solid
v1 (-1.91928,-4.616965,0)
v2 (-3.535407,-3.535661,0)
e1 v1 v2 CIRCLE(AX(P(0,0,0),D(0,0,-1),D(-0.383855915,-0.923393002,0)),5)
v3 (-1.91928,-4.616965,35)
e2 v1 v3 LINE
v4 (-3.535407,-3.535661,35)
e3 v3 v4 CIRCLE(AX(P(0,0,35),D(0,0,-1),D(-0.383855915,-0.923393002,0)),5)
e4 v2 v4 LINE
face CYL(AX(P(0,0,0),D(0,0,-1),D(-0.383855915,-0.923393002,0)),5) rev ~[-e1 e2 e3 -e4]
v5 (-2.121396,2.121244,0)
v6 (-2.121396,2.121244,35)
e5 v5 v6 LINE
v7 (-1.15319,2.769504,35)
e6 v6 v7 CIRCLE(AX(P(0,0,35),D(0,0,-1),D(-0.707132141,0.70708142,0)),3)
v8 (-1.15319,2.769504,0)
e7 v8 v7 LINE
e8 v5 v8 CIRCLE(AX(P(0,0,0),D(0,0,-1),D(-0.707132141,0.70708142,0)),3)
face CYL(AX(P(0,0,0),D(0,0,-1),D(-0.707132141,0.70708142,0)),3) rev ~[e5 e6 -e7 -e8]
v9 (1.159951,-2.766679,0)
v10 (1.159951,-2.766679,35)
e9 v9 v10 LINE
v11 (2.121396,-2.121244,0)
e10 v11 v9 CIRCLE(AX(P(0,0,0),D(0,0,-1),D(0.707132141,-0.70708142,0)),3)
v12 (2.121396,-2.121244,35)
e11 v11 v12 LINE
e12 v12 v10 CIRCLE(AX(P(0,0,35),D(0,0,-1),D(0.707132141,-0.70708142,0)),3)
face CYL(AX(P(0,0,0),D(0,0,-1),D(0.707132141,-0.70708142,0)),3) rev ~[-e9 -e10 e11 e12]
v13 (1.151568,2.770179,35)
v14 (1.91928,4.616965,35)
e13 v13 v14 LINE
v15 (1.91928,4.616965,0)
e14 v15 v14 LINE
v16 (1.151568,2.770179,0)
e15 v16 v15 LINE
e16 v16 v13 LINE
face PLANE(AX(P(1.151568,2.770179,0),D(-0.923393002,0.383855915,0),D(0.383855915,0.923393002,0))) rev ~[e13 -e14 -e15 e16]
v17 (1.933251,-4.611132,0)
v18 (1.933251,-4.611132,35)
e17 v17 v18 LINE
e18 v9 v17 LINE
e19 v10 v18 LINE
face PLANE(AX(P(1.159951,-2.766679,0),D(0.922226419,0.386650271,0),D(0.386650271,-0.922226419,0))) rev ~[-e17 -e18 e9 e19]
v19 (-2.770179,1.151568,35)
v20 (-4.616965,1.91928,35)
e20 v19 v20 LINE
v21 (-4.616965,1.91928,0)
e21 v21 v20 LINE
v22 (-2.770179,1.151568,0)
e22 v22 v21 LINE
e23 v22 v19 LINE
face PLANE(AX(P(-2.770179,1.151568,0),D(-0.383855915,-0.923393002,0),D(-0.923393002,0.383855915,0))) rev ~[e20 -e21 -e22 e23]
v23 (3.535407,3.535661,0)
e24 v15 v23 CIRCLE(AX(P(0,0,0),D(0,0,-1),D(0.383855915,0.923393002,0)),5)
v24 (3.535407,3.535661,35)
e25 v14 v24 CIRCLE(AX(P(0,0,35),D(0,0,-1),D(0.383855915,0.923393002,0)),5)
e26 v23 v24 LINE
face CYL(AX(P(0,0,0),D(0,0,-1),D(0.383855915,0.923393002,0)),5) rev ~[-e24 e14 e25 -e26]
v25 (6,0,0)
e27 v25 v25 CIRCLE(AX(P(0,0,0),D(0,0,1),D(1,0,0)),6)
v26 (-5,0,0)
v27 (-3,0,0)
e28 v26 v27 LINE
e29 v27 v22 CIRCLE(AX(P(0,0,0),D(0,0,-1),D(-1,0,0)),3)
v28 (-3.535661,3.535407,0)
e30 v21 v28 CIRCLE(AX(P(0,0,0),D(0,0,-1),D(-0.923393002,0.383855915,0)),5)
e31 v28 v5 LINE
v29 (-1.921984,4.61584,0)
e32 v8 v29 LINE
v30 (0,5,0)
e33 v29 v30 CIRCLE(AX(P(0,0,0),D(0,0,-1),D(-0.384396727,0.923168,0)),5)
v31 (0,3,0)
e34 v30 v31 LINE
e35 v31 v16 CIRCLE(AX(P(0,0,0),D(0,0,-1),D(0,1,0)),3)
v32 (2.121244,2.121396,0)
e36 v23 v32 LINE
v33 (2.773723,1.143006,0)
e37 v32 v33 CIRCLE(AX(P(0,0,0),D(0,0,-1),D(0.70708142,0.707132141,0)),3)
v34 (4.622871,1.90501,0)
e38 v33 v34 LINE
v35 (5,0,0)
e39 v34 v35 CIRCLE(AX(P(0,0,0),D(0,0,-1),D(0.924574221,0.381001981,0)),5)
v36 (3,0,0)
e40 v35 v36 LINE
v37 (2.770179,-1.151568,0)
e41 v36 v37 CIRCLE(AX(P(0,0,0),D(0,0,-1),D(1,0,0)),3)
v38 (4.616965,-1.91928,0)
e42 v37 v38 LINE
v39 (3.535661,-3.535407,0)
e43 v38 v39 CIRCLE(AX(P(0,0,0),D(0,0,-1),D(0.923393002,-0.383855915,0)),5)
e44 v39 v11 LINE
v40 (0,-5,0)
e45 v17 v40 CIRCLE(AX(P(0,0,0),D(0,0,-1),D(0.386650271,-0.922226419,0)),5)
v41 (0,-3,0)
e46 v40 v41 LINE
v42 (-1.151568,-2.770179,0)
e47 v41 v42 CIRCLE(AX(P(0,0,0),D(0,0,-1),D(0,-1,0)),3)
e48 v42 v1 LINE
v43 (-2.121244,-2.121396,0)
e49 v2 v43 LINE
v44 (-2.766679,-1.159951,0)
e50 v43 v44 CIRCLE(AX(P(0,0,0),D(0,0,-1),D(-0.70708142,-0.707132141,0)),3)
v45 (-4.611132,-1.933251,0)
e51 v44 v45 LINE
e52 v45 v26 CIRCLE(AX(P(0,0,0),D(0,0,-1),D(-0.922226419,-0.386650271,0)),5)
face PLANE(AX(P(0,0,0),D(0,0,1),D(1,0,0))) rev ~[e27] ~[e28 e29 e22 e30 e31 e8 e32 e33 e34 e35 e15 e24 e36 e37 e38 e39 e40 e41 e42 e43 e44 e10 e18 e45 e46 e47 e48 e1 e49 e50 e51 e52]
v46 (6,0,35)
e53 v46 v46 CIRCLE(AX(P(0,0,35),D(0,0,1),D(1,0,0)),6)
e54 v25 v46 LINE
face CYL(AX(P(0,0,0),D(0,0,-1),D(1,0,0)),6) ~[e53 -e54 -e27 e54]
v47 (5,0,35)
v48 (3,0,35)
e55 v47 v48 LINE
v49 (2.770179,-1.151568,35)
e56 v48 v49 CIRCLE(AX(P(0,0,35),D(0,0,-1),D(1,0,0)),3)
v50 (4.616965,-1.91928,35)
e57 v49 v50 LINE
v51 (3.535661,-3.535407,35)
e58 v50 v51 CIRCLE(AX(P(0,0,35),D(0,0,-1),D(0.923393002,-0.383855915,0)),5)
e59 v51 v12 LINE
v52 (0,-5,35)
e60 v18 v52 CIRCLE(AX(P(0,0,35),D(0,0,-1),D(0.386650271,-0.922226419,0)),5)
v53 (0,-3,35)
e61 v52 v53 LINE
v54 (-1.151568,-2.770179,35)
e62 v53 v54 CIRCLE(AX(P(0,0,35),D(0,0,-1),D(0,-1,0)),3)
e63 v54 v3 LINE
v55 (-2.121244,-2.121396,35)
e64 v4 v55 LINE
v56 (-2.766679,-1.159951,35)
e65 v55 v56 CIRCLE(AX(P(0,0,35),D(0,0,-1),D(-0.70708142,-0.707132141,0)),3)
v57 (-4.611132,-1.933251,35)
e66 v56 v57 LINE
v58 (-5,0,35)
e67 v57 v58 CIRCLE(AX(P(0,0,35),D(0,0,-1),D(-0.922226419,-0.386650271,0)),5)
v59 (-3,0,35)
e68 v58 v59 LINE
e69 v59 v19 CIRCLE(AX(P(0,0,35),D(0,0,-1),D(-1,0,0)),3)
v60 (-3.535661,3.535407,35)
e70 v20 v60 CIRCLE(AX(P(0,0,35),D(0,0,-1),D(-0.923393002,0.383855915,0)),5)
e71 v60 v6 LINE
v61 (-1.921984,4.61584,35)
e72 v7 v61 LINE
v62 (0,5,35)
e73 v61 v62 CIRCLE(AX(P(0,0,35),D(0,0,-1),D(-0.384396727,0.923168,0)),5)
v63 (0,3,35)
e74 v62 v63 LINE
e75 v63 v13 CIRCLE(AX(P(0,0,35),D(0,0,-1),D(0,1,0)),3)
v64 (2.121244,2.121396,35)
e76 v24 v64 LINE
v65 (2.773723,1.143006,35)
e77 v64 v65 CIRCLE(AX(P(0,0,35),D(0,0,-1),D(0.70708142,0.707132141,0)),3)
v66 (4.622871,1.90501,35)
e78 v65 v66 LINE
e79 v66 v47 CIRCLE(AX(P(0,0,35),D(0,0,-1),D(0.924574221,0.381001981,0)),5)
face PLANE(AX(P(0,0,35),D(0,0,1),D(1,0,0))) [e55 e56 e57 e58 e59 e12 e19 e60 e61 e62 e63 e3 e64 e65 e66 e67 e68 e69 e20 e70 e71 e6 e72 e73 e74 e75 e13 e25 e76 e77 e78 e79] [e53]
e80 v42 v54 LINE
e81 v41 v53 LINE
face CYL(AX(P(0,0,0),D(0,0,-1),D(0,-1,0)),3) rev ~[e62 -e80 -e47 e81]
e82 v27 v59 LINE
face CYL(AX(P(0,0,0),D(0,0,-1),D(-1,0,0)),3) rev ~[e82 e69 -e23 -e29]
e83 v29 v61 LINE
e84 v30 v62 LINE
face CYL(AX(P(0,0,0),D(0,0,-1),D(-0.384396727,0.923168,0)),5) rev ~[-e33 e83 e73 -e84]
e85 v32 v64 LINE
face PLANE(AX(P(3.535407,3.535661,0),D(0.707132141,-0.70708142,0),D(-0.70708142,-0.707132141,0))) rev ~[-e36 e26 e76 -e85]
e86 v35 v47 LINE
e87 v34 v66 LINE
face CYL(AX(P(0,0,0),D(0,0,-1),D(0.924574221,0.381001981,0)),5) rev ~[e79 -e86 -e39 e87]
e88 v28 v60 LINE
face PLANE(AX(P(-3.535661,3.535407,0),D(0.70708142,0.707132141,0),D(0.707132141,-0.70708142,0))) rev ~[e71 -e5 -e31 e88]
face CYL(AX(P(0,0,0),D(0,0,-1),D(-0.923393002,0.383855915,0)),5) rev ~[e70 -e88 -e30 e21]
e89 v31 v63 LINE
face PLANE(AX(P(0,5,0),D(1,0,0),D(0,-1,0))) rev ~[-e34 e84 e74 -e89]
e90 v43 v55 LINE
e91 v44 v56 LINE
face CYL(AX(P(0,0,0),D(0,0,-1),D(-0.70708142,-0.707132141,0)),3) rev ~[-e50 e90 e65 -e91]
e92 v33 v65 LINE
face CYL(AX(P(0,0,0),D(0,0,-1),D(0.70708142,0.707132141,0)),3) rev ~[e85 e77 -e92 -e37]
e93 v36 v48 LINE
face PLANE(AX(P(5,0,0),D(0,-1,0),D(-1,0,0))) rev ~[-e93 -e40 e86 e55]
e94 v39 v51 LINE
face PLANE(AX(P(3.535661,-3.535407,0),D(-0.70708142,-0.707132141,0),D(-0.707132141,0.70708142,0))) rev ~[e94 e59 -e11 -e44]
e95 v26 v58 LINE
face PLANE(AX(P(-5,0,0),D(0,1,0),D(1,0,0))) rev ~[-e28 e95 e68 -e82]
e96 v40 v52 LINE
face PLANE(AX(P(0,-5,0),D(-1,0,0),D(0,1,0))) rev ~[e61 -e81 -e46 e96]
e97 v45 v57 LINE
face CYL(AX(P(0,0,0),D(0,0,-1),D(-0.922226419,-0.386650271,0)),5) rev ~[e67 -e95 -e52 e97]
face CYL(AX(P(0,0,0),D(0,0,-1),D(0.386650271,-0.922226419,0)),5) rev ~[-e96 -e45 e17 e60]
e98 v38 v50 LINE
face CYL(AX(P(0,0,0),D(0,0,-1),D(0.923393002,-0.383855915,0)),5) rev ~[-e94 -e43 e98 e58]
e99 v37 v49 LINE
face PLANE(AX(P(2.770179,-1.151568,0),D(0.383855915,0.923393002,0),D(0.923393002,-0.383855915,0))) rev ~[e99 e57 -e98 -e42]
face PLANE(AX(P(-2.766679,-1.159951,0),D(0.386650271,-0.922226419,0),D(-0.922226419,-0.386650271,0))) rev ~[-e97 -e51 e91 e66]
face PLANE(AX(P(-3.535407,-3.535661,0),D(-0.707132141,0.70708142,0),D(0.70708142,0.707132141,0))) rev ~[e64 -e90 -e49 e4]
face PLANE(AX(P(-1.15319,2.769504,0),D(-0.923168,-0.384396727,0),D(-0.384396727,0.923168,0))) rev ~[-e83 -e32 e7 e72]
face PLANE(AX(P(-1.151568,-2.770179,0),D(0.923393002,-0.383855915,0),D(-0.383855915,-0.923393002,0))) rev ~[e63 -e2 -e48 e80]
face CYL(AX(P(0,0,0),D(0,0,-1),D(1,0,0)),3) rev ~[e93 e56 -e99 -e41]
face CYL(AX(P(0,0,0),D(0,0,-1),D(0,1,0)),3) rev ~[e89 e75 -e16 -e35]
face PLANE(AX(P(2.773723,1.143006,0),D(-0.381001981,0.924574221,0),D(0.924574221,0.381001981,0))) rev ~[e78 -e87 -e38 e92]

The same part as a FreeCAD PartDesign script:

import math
import FreeCAD as App
import Part
import Sketcher

doc = App.newDocument("Part")
body = doc.addObject("PartDesign::Body", "Body")

sketch1 = body.newObject("Sketcher::SketchObject", "Sketch")
sketch1.AttachmentSupport = (doc.getObject("XY_Plane"), [""])
sketch1.MapMode = "FlatFace"
sketch1.addGeometry(Part.Circle(App.Vector(0, 0, 0), App.Vector(0, 0, 1), 6), False)
sketch1.addGeometry(Part.ArcOfCircle(Part.Circle(App.Vector(0, 0, 0), App.Vector(0, 0, 1), 5), math.radians(0), math.radians(22)), False)
sketch1.addGeometry(Part.LineSegment(App.Vector(5, 0, 0), App.Vector(3, 0, 0)), False)
sketch1.addGeometry(Part.ArcOfCircle(Part.Circle(App.Vector(0, 0, 0), App.Vector(0, 0, 1), 3), math.radians(-23), math.radians(0)), False)
sketch1.addGeometry(Part.LineSegment(App.Vector(2.8, -1.2, 0), App.Vector(4.6, -1.9, 0)), False)
sketch1.addGeometry(Part.ArcOfCircle(Part.Circle(App.Vector(0, 0, 0), App.Vector(0, 0, 1), 5), math.radians(-45), math.radians(-23)), False)
sketch1.addGeometry(Part.LineSegment(App.Vector(3.5, -3.5, 0), App.Vector(2.1, -2.1, 0)), False)
sketch1.addGeometry(Part.ArcOfCircle(Part.Circle(App.Vector(0, 0, 0), App.Vector(0, 0, 1), 3), math.radians(-67), math.radians(-45)), False)
sketch1.addGeometry(Part.LineSegment(App.Vector(1.2, -2.8, 0), App.Vector(1.9, -4.6, 0)), False)
sketch1.addGeometry(Part.ArcOfCircle(Part.Circle(App.Vector(0, 0, 0), App.Vector(0, 0, 1), 5), math.radians(-90), math.radians(-67)), False)
sketch1.addGeometry(Part.LineSegment(App.Vector(0, -5, 0), App.Vector(0, -3, 0)), False)
sketch1.addGeometry(Part.ArcOfCircle(Part.Circle(App.Vector(0, 0, 0), App.Vector(0, 0, 1), 3), math.radians(-113), math.radians(-90)), False)
sketch1.addGeometry(Part.LineSegment(App.Vector(-1.2, -2.8, 0), App.Vector(-1.9, -4.6, 0)), False)
sketch1.addGeometry(Part.ArcOfCircle(Part.Circle(App.Vector(0, 0, 0), App.Vector(0, 0, 1), 5), math.radians(-135), math.radians(-113)), False)
sketch1.addGeometry(Part.LineSegment(App.Vector(-3.5, -3.5, 0), App.Vector(-2.1, -2.1, 0)), False)
sketch1.addGeometry(Part.ArcOfCircle(Part.Circle(App.Vector(0, 0, 0), App.Vector(0, 0, 1), 3), math.radians(-157), math.radians(-135)), False)
sketch1.addGeometry(Part.LineSegment(App.Vector(-2.8, -1.2, 0), App.Vector(-4.6, -1.9, 0)), False)
sketch1.addGeometry(Part.ArcOfCircle(Part.Circle(App.Vector(0, 0, 0), App.Vector(0, 0, 1), 5), math.radians(180), math.radians(203)), False)
sketch1.addGeometry(Part.LineSegment(App.Vector(-5, 0, 0), App.Vector(-3, 0, 0)), False)
sketch1.addGeometry(Part.ArcOfCircle(Part.Circle(App.Vector(0, 0, 0), App.Vector(0, 0, 1), 3), math.radians(157), math.radians(180)), False)
sketch1.addGeometry(Part.LineSegment(App.Vector(-2.8, 1.2, 0), App.Vector(-4.6, 1.9, 0)), False)
sketch1.addGeometry(Part.ArcOfCircle(Part.Circle(App.Vector(0, 0, 0), App.Vector(0, 0, 1), 5), math.radians(135), math.radians(157)), False)
sketch1.addGeometry(Part.LineSegment(App.Vector(-3.5, 3.5, 0), App.Vector(-2.1, 2.1, 0)), False)
sketch1.addGeometry(Part.ArcOfCircle(Part.Circle(App.Vector(0, 0, 0), App.Vector(0, 0, 1), 3), math.radians(113), math.radians(135)), False)
sketch1.addGeometry(Part.LineSegment(App.Vector(-1.2, 2.8, 0), App.Vector(-1.9, 4.6, 0)), False)
sketch1.addGeometry(Part.ArcOfCircle(Part.Circle(App.Vector(0, 0, 0), App.Vector(0, 0, 1), 5), math.radians(90), math.radians(113)), False)
sketch1.addGeometry(Part.LineSegment(App.Vector(0, 5, 0), App.Vector(0, 3, 0)), False)
sketch1.addGeometry(Part.ArcOfCircle(Part.Circle(App.Vector(0, 0, 0), App.Vector(0, 0, 1), 3), math.radians(67), math.radians(90)), False)
sketch1.addGeometry(Part.LineSegment(App.Vector(1.2, 2.8, 0), App.Vector(1.9, 4.6, 0)), False)
sketch1.addGeometry(Part.ArcOfCircle(Part.Circle(App.Vector(0, 0, 0), App.Vector(0, 0, 1), 5), math.radians(45), math.radians(67)), False)
sketch1.addGeometry(Part.LineSegment(App.Vector(3.5, 3.5, 0), App.Vector(2.1, 2.1, 0)), False)
sketch1.addGeometry(Part.ArcOfCircle(Part.Circle(App.Vector(0, 0, 0), App.Vector(0, 0, 1), 3), math.radians(22), math.radians(45)), False)
sketch1.addGeometry(Part.LineSegment(App.Vector(2.8, 1.1, 0), App.Vector(4.6, 1.9, 0)), False)
sketch1.addConstraint(Sketcher.Constraint("Coincident", 1, 1, 2, 1))
sketch1.addConstraint(Sketcher.Constraint("Coincident", 2, 2, 3, 2))
sketch1.addConstraint(Sketcher.Constraint("Coincident", 3, 1, 4, 1))
sketch1.addConstraint(Sketcher.Constraint("Coincident", 4, 2, 5, 2))
sketch1.addConstraint(Sketcher.Constraint("Coincident", 5, 1, 6, 1))
sketch1.addConstraint(Sketcher.Constraint("Coincident", 6, 2, 7, 2))
sketch1.addConstraint(Sketcher.Constraint("Coincident", 7, 1, 8, 1))
sketch1.addConstraint(Sketcher.Constraint("Coincident", 8, 2, 9, 2))
sketch1.addConstraint(Sketcher.Constraint("Coincident", 9, 1, 10, 1))
sketch1.addConstraint(Sketcher.Constraint("Coincident", 10, 2, 11, 2))
sketch1.addConstraint(Sketcher.Constraint("Coincident", 11, 1, 12, 1))
sketch1.addConstraint(Sketcher.Constraint("Coincident", 12, 2, 13, 2))
sketch1.addConstraint(Sketcher.Constraint("Coincident", 13, 1, 14, 1))
sketch1.addConstraint(Sketcher.Constraint("Coincident", 14, 2, 15, 2))
sketch1.addConstraint(Sketcher.Constraint("Coincident", 15, 1, 16, 1))
sketch1.addConstraint(Sketcher.Constraint("Coincident", 16, 2, 17, 2))
sketch1.addConstraint(Sketcher.Constraint("Coincident", 17, 1, 18, 1))
sketch1.addConstraint(Sketcher.Constraint("Coincident", 18, 2, 19, 2))
sketch1.addConstraint(Sketcher.Constraint("Coincident", 19, 1, 20, 1))
sketch1.addConstraint(Sketcher.Constraint("Coincident", 20, 2, 21, 2))
sketch1.addConstraint(Sketcher.Constraint("Coincident", 21, 1, 22, 1))
sketch1.addConstraint(Sketcher.Constraint("Coincident", 22, 2, 23, 2))
sketch1.addConstraint(Sketcher.Constraint("Coincident", 23, 1, 24, 1))
sketch1.addConstraint(Sketcher.Constraint("Coincident", 24, 2, 25, 2))
sketch1.addConstraint(Sketcher.Constraint("Coincident", 25, 1, 26, 1))
sketch1.addConstraint(Sketcher.Constraint("Coincident", 26, 2, 27, 2))
sketch1.addConstraint(Sketcher.Constraint("Coincident", 27, 1, 28, 1))
sketch1.addConstraint(Sketcher.Constraint("Coincident", 28, 2, 29, 2))
sketch1.addConstraint(Sketcher.Constraint("Coincident", 29, 1, 30, 1))
sketch1.addConstraint(Sketcher.Constraint("Coincident", 30, 2, 31, 2))
sketch1.addConstraint(Sketcher.Constraint("Coincident", 31, 1, 32, 1))
sketch1.addConstraint(Sketcher.Constraint("Coincident", 32, 2, 1, 2))
sketch1.addConstraint(Sketcher.Constraint("Horizontal", 2))
sketch1.addConstraint(Sketcher.Constraint("Vertical", 10))
sketch1.addConstraint(Sketcher.Constraint("Horizontal", 18))
sketch1.addConstraint(Sketcher.Constraint("Vertical", 26))
sketch1.addConstraint(Sketcher.Constraint("Coincident", 0, 3, -1, 1))
sketch1.addConstraint(Sketcher.Constraint("Coincident", 1, 3, -1, 1))
sketch1.addConstraint(Sketcher.Constraint("Coincident", 3, 3, -1, 1))
sketch1.addConstraint(Sketcher.Constraint("Coincident", 5, 3, -1, 1))
sketch1.addConstraint(Sketcher.Constraint("Coincident", 7, 3, -1, 1))
sketch1.addConstraint(Sketcher.Constraint("Coincident", 9, 3, -1, 1))
sketch1.addConstraint(Sketcher.Constraint("Coincident", 11, 3, -1, 1))
sketch1.addConstraint(Sketcher.Constraint("Coincident", 13, 3, -1, 1))
sketch1.addConstraint(Sketcher.Constraint("Coincident", 15, 3, -1, 1))
sketch1.addConstraint(Sketcher.Constraint("Coincident", 17, 3, -1, 1))
sketch1.addConstraint(Sketcher.Constraint("Coincident", 19, 3, -1, 1))
sketch1.addConstraint(Sketcher.Constraint("Coincident", 21, 3, -1, 1))
sketch1.addConstraint(Sketcher.Constraint("Coincident", 23, 3, -1, 1))
sketch1.addConstraint(Sketcher.Constraint("Coincident", 25, 3, -1, 1))
sketch1.addConstraint(Sketcher.Constraint("Coincident", 27, 3, -1, 1))
sketch1.addConstraint(Sketcher.Constraint("Coincident", 29, 3, -1, 1))
sketch1.addConstraint(Sketcher.Constraint("Coincident", 31, 3, -1, 1))
sketch1.addConstraint(Sketcher.Constraint("Equal", 1, 5))
sketch1.addConstraint(Sketcher.Constraint("Equal", 3, 7))
sketch1.addConstraint(Sketcher.Constraint("Equal", 5, 9))
sketch1.addConstraint(Sketcher.Constraint("Equal", 7, 11))
sketch1.addConstraint(Sketcher.Constraint("Equal", 9, 13))
sketch1.addConstraint(Sketcher.Constraint("Equal", 11, 15))
sketch1.addConstraint(Sketcher.Constraint("Equal", 13, 17))
sketch1.addConstraint(Sketcher.Constraint("Equal", 15, 19))
sketch1.addConstraint(Sketcher.Constraint("Equal", 17, 21))
sketch1.addConstraint(Sketcher.Constraint("Equal", 19, 23))
sketch1.addConstraint(Sketcher.Constraint("Equal", 21, 25))
sketch1.addConstraint(Sketcher.Constraint("Equal", 23, 27))
sketch1.addConstraint(Sketcher.Constraint("Equal", 25, 29))
sketch1.addConstraint(Sketcher.Constraint("Equal", 27, 31))
sketch1.addConstraint(Sketcher.Constraint("PointOnObject", 1, 1, -1))
sketch1.addConstraint(Sketcher.Constraint("PointOnObject", 9, 1, -2))
sketch1.addConstraint(Sketcher.Constraint("PointOnObject", 17, 1, -1))
sketch1.addConstraint(Sketcher.Constraint("PointOnObject", 25, 1, -2))
sketch1.addConstraint(Sketcher.Constraint("Perpendicular", 4, 12))
sketch1.addConstraint(Sketcher.Constraint("Perpendicular", 6, 14))
sketch1.addConstraint(Sketcher.Constraint("Perpendicular", 8, 16))
sketch1.addConstraint(Sketcher.Constraint("Perpendicular", 12, 20))
sketch1.addConstraint(Sketcher.Constraint("Perpendicular", 14, 22))
sketch1.addConstraint(Sketcher.Constraint("Perpendicular", 20, 28))
sketch1.addConstraint(Sketcher.Constraint("Perpendicular", 22, 30))
sketch1.addConstraint(Sketcher.Constraint("Diameter", 0, 12.0))
sketch1.addConstraint(Sketcher.Constraint("Radius", 1, 5.0))
sketch1.addConstraint(Sketcher.Constraint("Radius", 3, 3.0))
sketch1.addConstraint(Sketcher.Constraint("DistanceX", 7, 1, 8, 2, 0.773301))
sketch1.addConstraint(Sketcher.Constraint("DistanceY", 11, 1, 7, 1, 0.0035))
sketch1.addConstraint(Sketcher.Constraint("DistanceX", 19, 1, 15, 1, 0.0035))
sketch1.addConstraint(Sketcher.Constraint("DistanceX", -1, 1, 3, 1, 2.770179))
sketch1.addConstraint(Sketcher.Constraint("DistanceY", 4, 2, -1, 1, 1.91928))
sketch1.addConstraint(Sketcher.Constraint("DistanceX", -1, 1, 5, 1, 3.535661))
sketch1.addConstraint(Sketcher.Constraint("DistanceX", -1, 1, 7, 1, 1.159951))
sketch1.addConstraint(Sketcher.Constraint("DistanceY", 13, 1, -1, 1, 3.535661))
sketch1.addConstraint(Sketcher.Constraint("DistanceX", 15, 1, -1, 1, 2.766679))
sketch1.addConstraint(Sketcher.Constraint("DistanceX", 21, 1, -1, 1, 3.535661))
sketch1.addConstraint(Sketcher.Constraint("DistanceX", 23, 1, -1, 1, 1.15319))
sketch1.addConstraint(Sketcher.Constraint("DistanceY", -1, 1, 24, 2, 4.61584))
sketch1.addConstraint(Sketcher.Constraint("DistanceY", -1, 1, 27, 1, 2.770179))
sketch1.addConstraint(Sketcher.Constraint("DistanceY", -1, 1, 29, 1, 3.535661))
sketch1.addConstraint(Sketcher.Constraint("DistanceX", -1, 1, 32, 2, 4.622871))
sketch1.addConstraint(Sketcher.Constraint("DistanceX", 6, 2, 4, 2, 2.495569))
sketch1.addConstraint(Sketcher.Constraint("DistanceX", 30, 2, 31, 1, 0.652478))
pad1 = body.newObject("PartDesign::Pad", "Pad")
pad1.Profile = sketch1
pad1.Length = 35

doc.recompute()
